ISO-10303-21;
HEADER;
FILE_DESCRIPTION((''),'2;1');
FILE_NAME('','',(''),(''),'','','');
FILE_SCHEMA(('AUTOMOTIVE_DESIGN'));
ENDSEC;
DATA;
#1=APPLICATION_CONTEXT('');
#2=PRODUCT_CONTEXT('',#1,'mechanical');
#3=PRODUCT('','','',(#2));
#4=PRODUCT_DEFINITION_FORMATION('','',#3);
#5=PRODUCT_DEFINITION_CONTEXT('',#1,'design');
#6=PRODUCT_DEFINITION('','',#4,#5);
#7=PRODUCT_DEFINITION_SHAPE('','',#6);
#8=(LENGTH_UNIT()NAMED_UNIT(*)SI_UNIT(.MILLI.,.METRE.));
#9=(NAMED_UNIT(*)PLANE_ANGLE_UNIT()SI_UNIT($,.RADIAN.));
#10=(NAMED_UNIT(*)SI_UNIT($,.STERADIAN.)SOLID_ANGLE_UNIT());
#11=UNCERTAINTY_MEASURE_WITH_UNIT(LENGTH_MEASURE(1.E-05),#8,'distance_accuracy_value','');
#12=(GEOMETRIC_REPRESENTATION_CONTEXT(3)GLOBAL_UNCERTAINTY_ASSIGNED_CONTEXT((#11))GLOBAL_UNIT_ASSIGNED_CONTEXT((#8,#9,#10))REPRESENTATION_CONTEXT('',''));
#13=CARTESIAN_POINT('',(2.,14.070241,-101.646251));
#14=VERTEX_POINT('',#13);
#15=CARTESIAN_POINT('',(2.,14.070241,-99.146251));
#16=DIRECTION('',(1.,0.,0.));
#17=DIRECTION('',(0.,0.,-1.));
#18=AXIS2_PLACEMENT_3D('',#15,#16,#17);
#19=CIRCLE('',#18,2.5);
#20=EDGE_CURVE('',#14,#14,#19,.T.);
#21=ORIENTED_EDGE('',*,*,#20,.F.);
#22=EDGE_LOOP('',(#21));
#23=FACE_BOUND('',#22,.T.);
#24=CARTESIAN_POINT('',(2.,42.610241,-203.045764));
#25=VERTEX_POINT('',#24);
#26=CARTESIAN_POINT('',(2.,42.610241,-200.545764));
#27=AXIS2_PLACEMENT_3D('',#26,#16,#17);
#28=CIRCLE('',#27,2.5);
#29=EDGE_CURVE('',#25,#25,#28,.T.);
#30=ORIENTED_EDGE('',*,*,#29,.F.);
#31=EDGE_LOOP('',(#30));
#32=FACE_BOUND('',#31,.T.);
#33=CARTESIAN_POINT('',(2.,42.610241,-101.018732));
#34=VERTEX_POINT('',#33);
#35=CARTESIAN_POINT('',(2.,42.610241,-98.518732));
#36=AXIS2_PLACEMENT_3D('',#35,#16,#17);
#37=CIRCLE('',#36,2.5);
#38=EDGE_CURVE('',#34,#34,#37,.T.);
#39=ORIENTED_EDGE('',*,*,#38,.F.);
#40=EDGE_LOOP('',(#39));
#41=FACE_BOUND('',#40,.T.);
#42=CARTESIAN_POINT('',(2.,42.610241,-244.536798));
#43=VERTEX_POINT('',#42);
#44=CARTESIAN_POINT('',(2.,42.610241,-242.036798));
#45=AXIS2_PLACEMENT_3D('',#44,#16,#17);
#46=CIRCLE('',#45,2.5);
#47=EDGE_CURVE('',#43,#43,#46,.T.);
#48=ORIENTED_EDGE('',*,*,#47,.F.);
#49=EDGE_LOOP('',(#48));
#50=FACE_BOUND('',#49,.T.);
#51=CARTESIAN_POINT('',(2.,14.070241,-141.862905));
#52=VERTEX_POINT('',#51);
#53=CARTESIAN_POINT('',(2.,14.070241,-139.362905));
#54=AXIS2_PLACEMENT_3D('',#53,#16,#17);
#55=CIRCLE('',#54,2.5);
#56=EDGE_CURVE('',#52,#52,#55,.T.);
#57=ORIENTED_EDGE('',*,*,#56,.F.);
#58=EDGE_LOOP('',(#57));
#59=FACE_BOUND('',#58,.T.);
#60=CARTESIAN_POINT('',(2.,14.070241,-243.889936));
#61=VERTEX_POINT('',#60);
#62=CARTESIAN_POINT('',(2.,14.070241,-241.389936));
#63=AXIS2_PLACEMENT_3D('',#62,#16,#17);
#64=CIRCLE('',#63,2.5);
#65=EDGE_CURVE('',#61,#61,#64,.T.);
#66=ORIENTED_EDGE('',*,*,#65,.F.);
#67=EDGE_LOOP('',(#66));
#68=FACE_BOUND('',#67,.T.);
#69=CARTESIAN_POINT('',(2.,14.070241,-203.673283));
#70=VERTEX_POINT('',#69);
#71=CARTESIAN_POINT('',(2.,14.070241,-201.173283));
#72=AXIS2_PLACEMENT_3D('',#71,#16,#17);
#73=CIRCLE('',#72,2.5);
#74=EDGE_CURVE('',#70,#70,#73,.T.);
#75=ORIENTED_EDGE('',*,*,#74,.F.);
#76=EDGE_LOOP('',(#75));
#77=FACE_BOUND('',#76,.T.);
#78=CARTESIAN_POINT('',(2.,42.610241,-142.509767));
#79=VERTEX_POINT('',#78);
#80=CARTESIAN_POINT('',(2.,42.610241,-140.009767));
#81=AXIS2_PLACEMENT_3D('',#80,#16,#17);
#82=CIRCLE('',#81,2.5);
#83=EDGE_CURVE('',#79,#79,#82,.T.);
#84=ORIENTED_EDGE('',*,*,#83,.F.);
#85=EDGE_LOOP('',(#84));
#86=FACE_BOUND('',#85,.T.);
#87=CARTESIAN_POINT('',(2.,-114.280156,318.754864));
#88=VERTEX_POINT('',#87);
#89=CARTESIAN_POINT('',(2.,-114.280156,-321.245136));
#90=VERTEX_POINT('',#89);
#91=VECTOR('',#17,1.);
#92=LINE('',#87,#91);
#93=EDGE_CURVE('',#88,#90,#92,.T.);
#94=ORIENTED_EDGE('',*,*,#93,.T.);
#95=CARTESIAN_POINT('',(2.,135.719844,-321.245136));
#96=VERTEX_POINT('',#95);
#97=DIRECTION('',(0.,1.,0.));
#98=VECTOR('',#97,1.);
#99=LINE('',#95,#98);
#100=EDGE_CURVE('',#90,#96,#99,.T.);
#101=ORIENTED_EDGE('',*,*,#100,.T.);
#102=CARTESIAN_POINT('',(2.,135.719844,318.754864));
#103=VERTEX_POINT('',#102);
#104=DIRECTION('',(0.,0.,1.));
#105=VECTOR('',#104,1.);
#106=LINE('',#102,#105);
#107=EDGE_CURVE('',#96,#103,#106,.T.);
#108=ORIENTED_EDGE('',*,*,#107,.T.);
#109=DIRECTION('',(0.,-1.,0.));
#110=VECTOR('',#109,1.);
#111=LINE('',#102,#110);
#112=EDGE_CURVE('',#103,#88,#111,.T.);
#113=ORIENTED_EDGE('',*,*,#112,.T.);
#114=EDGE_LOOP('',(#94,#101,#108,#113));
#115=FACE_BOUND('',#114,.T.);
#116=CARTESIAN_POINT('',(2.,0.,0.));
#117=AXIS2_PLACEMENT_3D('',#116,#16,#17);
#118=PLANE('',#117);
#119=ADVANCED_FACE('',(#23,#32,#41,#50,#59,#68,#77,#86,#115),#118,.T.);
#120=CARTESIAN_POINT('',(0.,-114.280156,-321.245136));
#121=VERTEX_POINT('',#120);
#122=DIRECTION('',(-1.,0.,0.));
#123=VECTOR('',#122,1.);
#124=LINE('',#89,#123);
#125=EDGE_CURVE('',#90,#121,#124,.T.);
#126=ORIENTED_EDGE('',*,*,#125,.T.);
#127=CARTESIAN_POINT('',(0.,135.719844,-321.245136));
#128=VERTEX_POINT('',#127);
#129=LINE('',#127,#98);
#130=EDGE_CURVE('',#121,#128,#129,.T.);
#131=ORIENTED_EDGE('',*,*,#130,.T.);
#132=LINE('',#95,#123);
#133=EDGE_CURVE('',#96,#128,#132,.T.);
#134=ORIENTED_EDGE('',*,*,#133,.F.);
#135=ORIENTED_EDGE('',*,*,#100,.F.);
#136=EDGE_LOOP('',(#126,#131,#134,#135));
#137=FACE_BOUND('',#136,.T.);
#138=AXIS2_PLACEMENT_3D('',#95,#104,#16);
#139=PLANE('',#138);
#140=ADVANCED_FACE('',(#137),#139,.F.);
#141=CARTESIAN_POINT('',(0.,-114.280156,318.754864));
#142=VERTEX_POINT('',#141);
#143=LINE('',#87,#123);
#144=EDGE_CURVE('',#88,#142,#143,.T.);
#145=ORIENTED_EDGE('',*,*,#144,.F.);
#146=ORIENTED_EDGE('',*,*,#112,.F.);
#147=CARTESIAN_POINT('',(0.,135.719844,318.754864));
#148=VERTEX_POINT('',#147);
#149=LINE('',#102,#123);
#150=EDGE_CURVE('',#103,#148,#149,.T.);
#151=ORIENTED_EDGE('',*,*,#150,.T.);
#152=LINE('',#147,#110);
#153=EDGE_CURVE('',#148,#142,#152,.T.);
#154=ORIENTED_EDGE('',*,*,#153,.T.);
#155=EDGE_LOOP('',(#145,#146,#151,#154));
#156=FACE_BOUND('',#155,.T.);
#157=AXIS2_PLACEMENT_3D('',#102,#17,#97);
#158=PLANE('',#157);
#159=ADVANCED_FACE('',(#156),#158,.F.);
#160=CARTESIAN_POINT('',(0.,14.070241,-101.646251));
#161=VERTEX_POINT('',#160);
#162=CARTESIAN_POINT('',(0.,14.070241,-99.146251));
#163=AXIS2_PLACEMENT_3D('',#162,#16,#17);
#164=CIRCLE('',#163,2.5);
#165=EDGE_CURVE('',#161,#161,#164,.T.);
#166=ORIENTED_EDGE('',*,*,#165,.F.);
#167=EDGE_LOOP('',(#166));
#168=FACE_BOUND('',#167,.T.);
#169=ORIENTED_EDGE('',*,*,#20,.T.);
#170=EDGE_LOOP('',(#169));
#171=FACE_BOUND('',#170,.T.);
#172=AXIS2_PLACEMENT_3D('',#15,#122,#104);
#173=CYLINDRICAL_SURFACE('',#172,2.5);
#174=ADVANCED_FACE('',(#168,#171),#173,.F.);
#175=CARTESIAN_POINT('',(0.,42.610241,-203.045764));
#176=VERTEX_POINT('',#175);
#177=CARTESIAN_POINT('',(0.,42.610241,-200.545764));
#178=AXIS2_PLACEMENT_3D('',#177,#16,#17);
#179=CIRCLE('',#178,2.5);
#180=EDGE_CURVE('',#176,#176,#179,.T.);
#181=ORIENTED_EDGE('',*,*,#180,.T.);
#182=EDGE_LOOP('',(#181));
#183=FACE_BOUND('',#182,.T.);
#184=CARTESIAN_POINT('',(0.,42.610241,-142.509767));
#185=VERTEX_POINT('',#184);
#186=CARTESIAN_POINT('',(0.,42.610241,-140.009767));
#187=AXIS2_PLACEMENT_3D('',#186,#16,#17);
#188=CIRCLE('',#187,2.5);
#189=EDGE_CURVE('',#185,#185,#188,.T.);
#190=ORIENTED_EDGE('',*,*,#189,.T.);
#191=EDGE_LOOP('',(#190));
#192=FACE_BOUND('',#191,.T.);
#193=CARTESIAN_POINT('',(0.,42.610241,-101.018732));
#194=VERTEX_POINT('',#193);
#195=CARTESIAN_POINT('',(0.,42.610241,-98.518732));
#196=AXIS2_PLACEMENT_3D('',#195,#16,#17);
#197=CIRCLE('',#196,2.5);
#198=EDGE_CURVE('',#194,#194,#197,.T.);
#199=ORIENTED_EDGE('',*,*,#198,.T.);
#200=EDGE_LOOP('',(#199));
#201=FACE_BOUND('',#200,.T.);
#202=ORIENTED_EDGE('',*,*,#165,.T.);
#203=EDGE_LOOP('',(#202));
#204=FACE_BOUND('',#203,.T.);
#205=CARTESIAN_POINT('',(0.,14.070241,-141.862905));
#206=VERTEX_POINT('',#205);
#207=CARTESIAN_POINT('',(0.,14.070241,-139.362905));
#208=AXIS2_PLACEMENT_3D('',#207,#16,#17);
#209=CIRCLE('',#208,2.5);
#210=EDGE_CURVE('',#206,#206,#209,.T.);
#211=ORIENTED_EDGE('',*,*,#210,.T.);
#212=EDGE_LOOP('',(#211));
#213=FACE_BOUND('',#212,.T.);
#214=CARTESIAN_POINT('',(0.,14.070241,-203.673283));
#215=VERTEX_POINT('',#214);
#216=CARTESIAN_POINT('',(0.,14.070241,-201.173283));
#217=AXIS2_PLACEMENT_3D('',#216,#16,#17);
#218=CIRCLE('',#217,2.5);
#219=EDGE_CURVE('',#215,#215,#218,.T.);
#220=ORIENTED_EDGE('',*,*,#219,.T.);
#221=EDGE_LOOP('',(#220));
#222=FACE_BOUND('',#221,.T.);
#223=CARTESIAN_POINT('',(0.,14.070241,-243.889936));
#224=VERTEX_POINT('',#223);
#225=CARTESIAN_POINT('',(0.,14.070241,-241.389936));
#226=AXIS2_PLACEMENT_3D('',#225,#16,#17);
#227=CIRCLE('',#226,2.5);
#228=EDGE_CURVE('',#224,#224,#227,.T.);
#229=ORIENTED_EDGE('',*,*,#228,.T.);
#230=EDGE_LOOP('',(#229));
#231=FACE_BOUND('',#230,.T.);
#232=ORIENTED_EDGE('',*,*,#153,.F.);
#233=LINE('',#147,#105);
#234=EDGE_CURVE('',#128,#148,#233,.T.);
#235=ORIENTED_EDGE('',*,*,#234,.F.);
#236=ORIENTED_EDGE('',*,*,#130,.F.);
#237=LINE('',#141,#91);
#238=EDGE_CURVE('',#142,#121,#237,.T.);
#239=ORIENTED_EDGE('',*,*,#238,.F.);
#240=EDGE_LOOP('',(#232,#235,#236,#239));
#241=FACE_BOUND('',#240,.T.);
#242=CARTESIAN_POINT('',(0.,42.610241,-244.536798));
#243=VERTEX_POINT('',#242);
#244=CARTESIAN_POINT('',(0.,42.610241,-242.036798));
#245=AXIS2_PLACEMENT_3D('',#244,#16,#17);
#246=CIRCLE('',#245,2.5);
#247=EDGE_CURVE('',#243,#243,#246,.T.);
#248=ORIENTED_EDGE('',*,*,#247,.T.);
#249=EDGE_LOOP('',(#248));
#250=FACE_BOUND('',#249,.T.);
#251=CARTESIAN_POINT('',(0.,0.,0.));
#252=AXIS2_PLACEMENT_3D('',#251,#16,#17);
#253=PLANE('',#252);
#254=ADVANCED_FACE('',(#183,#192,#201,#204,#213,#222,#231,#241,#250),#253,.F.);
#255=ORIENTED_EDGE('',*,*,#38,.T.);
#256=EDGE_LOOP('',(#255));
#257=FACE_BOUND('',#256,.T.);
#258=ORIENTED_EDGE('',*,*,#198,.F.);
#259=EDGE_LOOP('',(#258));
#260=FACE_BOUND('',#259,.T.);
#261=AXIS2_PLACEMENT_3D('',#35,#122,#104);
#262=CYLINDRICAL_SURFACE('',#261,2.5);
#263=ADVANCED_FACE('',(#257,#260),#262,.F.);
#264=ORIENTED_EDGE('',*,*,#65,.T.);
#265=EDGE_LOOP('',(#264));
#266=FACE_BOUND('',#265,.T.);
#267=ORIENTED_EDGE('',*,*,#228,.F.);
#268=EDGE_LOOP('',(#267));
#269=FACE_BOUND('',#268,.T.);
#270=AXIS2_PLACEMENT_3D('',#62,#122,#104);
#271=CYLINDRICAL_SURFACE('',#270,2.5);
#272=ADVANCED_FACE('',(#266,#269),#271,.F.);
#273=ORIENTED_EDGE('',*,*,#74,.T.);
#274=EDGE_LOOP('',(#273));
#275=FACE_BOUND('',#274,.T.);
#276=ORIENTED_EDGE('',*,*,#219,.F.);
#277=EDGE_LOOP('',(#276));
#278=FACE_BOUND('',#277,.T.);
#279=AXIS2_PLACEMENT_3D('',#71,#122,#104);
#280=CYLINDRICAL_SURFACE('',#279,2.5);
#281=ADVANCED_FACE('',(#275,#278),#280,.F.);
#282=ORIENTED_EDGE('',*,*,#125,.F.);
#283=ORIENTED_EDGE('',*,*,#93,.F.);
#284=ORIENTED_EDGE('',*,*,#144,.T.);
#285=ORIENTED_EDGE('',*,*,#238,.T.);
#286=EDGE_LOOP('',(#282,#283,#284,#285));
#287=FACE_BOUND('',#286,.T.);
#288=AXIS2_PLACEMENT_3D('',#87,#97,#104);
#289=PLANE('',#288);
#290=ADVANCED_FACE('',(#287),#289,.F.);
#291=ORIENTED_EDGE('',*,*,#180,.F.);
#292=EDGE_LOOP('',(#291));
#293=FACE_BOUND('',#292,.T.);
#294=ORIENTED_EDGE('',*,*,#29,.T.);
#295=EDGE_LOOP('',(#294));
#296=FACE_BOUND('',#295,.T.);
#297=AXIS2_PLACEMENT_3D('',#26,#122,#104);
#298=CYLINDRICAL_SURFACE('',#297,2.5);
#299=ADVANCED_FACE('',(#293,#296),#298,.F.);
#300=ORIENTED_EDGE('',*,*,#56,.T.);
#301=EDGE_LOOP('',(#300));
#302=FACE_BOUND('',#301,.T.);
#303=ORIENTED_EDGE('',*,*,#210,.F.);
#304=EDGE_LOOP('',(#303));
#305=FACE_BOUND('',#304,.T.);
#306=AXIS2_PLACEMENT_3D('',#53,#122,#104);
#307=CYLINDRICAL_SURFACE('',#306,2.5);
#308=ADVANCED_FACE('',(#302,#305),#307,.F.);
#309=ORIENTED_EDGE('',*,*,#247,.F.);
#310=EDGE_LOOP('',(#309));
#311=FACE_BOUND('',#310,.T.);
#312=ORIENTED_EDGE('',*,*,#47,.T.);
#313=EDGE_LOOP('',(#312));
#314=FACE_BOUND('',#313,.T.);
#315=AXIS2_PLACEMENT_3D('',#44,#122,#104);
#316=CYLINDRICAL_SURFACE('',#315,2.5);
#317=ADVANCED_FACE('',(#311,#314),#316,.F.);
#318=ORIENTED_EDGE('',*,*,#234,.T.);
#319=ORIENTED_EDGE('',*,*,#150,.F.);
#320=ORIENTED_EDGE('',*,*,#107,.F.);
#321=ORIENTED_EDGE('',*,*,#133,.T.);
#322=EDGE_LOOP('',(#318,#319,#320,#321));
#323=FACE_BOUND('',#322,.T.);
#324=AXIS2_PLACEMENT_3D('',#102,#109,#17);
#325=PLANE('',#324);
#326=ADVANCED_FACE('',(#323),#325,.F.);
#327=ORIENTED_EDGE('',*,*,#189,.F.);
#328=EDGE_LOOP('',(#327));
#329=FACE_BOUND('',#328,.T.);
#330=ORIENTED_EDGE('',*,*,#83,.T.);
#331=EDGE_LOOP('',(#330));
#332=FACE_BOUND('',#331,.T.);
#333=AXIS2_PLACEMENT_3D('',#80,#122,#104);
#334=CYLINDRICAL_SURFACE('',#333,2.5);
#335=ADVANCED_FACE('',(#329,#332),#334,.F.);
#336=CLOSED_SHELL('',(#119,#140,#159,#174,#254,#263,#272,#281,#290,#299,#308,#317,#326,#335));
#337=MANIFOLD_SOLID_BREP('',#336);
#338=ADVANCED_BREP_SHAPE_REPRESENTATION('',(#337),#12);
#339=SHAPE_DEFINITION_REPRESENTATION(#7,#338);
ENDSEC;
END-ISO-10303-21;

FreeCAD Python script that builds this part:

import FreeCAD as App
import Part
import Sketcher

V = App.Vector

doc = App.newDocument("Part")
body = doc.addObject("PartDesign::Body", "Body")

# Sketch on YZ plane
sketch1 = body.newObject("Sketcher::SketchObject", "Sketch")
sketch1.AttachmentSupport = (doc.getObject("YZ_Plane"), [""])
sketch1.MapMode = "FlatFace"
sketch1.addGeometry([
    Part.LineSegment(V(135.7, 318.8, 0), V(-114.3, 318.8, 0)),  # 0
    Part.LineSegment(V(-114.3, 318.8, 0), V(-114.3, -321.2, 0)),  # 1
    Part.LineSegment(V(-114.3, -321.2, 0), V(135.7, -321.2, 0)),  # 2
    Part.LineSegment(V(135.7, -321.2, 0), V(135.7, 318.8, 0)),  # 3
    Part.Circle(V(14.1, -99.1, 0), V(0, 0, 1), 2.5),  # 4
    Part.Circle(V(14.1, -139.4, 0), V(0, 0, 1), 2.5),  # 5
    Part.Circle(V(14.1, -201.2, 0), V(0, 0, 1), 2.5),  # 6
    Part.Circle(V(14.1, -241.4, 0), V(0, 0, 1), 2.5),  # 7
    Part.Circle(V(42.6, -98.5, 0), V(0, 0, 1), 2.5),  # 8
    Part.Circle(V(42.6, -140, 0), V(0, 0, 1), 2.5),  # 9
    Part.Circle(V(42.6, -200.5, 0), V(0, 0, 1), 2.5),  # 10
    Part.Circle(V(42.6, -242, 0), V(0, 0, 1), 2.5),  # 11
], False)
sketch1.addConstraint([
    Sketcher.Constraint("Coincident", 0, 2, 1, 1),
    Sketcher.Constraint("Coincident", 1, 2, 2, 1),
    Sketcher.Constraint("Coincident", 2, 2, 3, 1),
    Sketcher.Constraint("Coincident", 3, 2, 0, 1),
    Sketcher.Constraint("Horizontal", 0),
    Sketcher.Constraint("Vertical", 1),
    Sketcher.Constraint("Horizontal", 2),
    Sketcher.Constraint("Vertical", 3),
    Sketcher.Constraint("Equal", 4, 5),
    Sketcher.Constraint("Equal", 5, 6),
    Sketcher.Constraint("Equal", 6, 7),
    Sketcher.Constraint("Equal", 7, 8),
    Sketcher.Constraint("Equal", 8, 9),
    Sketcher.Constraint("Equal", 9, 10),
    Sketcher.Constraint("Equal", 10, 11),
    Sketcher.Constraint("Vertical", 4, 3, 5, 3),
    Sketcher.Constraint("Vertical", 5, 3, 6, 3),
    Sketcher.Constraint("Vertical", 6, 3, 7, 3),
    Sketcher.Constraint("Vertical", 8, 3, 9, 3),
    Sketcher.Constraint("Vertical", 9, 3, 10, 3),
    Sketcher.Constraint("Vertical", 10, 3, 11, 3),
    Sketcher.Constraint("Diameter", 4, 5.0),
    Sketcher.Constraint("DistanceX", 0, 2, 0, 1, 250.0),
    Sketcher.Constraint("DistanceY", 1, 2, 1, 1, 640.0),
    Sketcher.Constraint("DistanceX", 4, 3, 8, 3, 28.54),
    Sketcher.Constraint("DistanceY", 11, 3, -1, 1, 242.036798),
    Sketcher.Constraint("DistanceY", 1, 2, 7, 3, 79.8552),
    Sketcher.Constraint("DistanceX", -1, 1, 4, 3, 14.070241),
    Sketcher.Constraint("DistanceY", 4, 3, -1, 1, 99.146251),
    Sketcher.Constraint("DistanceY", 6, 3, 4, 3, 102.027031),
    Sketcher.Constraint("DistanceY", 7, 3, 5, 3, 102.027031),
    Sketcher.Constraint("DistanceY", 4, 3, 8, 3, 0.627519),
    Sketcher.Constraint("DistanceY", 7, 3, 9, 3, 101.380169),
    Sketcher.Constraint("DistanceY", 6, 3, 10, 3, 0.627519),
    Sketcher.Constraint("DistanceY", 10, 3, 5, 3, 61.182859),
    Sketcher.Constraint("DistanceX", 0, 2, -1, 1, 114.280156),
])
pad1 = body.newObject("PartDesign::Pad", "Pad")
pad1.Profile = sketch1
pad1.Length = 2

doc.recompute()
